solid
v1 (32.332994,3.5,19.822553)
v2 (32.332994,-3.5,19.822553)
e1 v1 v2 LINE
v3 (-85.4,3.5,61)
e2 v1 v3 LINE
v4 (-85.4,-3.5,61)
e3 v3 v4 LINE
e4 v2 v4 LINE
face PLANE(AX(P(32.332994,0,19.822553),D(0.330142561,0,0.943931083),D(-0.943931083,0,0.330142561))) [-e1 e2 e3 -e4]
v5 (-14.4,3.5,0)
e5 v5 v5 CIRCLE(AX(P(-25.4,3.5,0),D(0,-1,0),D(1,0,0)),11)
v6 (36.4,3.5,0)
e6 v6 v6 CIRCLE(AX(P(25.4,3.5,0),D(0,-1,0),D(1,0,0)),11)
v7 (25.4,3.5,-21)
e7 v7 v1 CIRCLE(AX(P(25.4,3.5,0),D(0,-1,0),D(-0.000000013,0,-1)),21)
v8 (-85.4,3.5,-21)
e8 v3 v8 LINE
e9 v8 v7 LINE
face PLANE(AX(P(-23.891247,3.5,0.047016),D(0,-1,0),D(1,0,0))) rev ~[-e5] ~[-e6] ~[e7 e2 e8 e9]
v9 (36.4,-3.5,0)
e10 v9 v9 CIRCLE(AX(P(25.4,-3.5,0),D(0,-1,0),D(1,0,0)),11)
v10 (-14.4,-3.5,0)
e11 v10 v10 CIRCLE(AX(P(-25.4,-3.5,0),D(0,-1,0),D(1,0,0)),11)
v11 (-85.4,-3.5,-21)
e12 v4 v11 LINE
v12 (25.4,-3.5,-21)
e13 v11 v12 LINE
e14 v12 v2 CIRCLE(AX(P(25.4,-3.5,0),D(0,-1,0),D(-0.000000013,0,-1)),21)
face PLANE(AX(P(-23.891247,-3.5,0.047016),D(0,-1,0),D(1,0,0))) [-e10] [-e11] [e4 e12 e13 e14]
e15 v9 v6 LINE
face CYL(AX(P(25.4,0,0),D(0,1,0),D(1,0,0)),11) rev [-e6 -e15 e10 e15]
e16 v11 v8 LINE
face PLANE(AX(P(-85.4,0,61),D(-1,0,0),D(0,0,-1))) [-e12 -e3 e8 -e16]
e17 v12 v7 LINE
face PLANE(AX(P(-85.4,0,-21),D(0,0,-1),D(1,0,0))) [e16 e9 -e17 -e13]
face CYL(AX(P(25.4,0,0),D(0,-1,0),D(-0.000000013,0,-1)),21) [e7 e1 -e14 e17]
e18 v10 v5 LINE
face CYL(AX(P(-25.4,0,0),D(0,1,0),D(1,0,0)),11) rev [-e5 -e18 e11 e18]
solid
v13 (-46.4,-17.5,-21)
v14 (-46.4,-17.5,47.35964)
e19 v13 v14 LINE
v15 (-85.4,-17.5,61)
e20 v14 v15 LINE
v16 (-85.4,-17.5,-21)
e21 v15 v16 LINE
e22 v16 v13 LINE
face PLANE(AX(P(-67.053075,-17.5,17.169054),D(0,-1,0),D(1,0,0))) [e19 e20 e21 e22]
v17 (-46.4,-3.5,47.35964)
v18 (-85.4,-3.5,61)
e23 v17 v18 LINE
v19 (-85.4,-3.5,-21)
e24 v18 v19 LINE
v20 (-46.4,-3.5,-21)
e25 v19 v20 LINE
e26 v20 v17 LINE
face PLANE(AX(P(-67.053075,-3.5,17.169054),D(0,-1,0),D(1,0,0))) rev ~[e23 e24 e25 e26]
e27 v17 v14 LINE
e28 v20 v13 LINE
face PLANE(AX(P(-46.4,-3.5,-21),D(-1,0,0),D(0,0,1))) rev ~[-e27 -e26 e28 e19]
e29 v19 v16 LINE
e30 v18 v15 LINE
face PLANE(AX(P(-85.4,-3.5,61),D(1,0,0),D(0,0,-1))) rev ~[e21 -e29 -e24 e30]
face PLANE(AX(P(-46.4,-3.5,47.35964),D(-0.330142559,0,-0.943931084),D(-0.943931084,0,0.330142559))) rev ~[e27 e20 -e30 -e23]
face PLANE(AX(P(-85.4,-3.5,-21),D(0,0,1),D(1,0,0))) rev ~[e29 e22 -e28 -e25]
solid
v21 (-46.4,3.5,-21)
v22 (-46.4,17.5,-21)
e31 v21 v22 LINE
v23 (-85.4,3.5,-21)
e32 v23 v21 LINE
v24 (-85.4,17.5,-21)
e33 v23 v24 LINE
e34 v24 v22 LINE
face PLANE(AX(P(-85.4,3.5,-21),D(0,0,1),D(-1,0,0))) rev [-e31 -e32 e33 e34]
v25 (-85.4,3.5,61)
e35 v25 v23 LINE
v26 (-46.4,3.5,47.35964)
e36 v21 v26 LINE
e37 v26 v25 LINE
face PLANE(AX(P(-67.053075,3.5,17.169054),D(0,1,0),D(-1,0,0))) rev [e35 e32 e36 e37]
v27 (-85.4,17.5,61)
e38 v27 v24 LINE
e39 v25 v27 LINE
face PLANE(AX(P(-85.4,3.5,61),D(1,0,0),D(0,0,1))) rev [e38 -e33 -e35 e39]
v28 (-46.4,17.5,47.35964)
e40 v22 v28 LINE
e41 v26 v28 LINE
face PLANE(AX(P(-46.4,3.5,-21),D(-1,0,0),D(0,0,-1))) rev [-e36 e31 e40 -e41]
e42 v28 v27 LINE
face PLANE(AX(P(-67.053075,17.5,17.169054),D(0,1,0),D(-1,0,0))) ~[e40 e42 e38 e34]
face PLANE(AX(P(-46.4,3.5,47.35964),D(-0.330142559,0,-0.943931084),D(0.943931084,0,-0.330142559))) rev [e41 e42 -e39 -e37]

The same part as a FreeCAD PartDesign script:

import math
import FreeCAD as App
import Part
import Sketcher
Q = App.Units.Quantity

doc = App.newDocument("Part")
body = doc.addObject("PartDesign::Body", "Body")

# Sketch on XZ plane
sketch1 = body.newObject("Sketcher::SketchObject", "Sketch")
sketch1.AttachmentSupport = (doc.getObject("XZ_Plane"), [""])
sketch1.MapMode = "FlatFace"
sketch1.addGeometry(Part.ArcOfCircle(Part.Circle(App.Vector(25, 0, 0), App.Vector(0, 0, 1), 21), math.radians(-90), math.radians(71)), False)
sketch1.addGeometry(Part.LineSegment(App.Vector(32, 20, 0), App.Vector(-85, 61, 0)), False)
sketch1.addGeometry(Part.LineSegment(App.Vector(-85, 61, 0), App.Vector(-85, -21, 0)), False)
sketch1.addGeometry(Part.LineSegment(App.Vector(-85, -21, 0), App.Vector(25, -21, 0)), False)
sketch1.addGeometry(Part.Circle(App.Vector(-25, 0, 0), App.Vector(0, 0, 1), 11), False)
sketch1.addGeometry(Part.Circle(App.Vector(25, 0, 0), App.Vector(0, 0, 1), 11), False)
sketch1.addConstraint(Sketcher.Constraint("Tangent", 0, 2, 1, 1))
sketch1.addConstraint(Sketcher.Constraint("Coincident", 1, 2, 2, 1))
sketch1.addConstraint(Sketcher.Constraint("Coincident", 2, 2, 3, 1))
sketch1.addConstraint(Sketcher.Constraint("Tangent", 3, 2, 0, 1))
sketch1.addConstraint(Sketcher.Constraint("Vertical", 2))
sketch1.addConstraint(Sketcher.Constraint("Horizontal", 3))
sketch1.addConstraint(Sketcher.Constraint("Coincident", 5, 3, 0, 3))
sketch1.addConstraint(Sketcher.Constraint("Equal", 4, 5))
sketch1.addConstraint(Sketcher.Constraint("Symmetric", 0, 3, 4, 3, -1, 1))
sketch1.addConstraint(Sketcher.Constraint("PointOnObject", 0, 3, -1))
sketch1.addConstraint(Sketcher.Constraint("Diameter", 4, Q("22 mm")))
sketch1.addConstraint(Sketcher.Constraint("Radius", 0, Q("21 mm")))
sketch1.addConstraint(Sketcher.Constraint("DistanceY", 2, 2, 2, 1, Q("82 mm")))
sketch1.addConstraint(Sketcher.Constraint("DistanceX", 3, 1, 3, 2, Q("110.8 mm")))
sketch1.addConstraint(Sketcher.Constraint("DistanceX", 1, 2, 4, 3, Q("60 mm")))
pad1 = body.newObject("PartDesign::Pad", "Pad")
pad1.Profile = sketch1
pad1.Length = 7
pad1.Midplane = True
body2 = doc.addObject("PartDesign::Body", "Body001")

# Sketch on XZ plane
sketch2 = body2.newObject("Sketcher::SketchObject", "Sketch001")
sketch2.AttachmentSupport = (doc.getObject("XZ_Plane001"), [""])
sketch2.MapMode = "FlatFace"
sketch2.AttachmentOffset = App.Placement(App.Vector(0, 0, 3.5), App.Rotation())
sketch2.addGeometry(Part.LineSegment(App.Vector(-46, 47, 0), App.Vector(-85, 61, 0)), False)
sketch2.addGeometry(Part.LineSegment(App.Vector(-85, 61, 0), App.Vector(-85, -21, 0)), False)
sketch2.addGeometry(Part.LineSegment(App.Vector(-85, -21, 0), App.Vector(-46, -21, 0)), False)
sketch2.addGeometry(Part.LineSegment(App.Vector(-46, -21, 0), App.Vector(-46, 47, 0)), False)
sketch2.addConstraint(Sketcher.Constraint("Coincident", 0, 2, 1, 1))
sketch2.addConstraint(Sketcher.Constraint("Coincident", 1, 2, 2, 1))
sketch2.addConstraint(Sketcher.Constraint("Coincident", 2, 2, 3, 1))
sketch2.addConstraint(Sketcher.Constraint("Coincident", 3, 2, 0, 1))
sketch2.addConstraint(Sketcher.Constraint("Vertical", 1))
sketch2.addConstraint(Sketcher.Constraint("Horizontal", 2))
sketch2.addConstraint(Sketcher.Constraint("Vertical", 3))
sketch2.addConstraint(Sketcher.Constraint("DistanceX", 2, 1, 2, 2, Q("39 mm")))
sketch2.addConstraint(Sketcher.Constraint("DistanceY", 1, 2, 1, 1, Q("82 mm")))
sketch2.addConstraint(Sketcher.Constraint("DistanceY", -1, 1, 0, 2, Q("61 mm")))
sketch2.addConstraint(Sketcher.Constraint("DistanceX", 0, 2, -1, 1, Q("85.4 mm")))
sketch2.addConstraint(Sketcher.Constraint("DistanceY", 3, 1, 3, 2, Q("68.35964 mm")))
pad2 = body2.newObject("PartDesign::Pad", "Pad001")
pad2.Profile = sketch2
pad2.Length = 14
body3 = doc.addObject("PartDesign::Body", "Body002")
doc.recompute()

mirroring = doc.addObject("Part::Mirroring", "Mirroring")
mirroring.Source = body2
mirroring.Base = App.Vector(0, 0, 0)
mirroring.Normal = App.Vector(0, -1, 0)
body3.BaseFeature = mirroring
doc.recompute()
mirroring.Visibility = False

doc.recompute()
